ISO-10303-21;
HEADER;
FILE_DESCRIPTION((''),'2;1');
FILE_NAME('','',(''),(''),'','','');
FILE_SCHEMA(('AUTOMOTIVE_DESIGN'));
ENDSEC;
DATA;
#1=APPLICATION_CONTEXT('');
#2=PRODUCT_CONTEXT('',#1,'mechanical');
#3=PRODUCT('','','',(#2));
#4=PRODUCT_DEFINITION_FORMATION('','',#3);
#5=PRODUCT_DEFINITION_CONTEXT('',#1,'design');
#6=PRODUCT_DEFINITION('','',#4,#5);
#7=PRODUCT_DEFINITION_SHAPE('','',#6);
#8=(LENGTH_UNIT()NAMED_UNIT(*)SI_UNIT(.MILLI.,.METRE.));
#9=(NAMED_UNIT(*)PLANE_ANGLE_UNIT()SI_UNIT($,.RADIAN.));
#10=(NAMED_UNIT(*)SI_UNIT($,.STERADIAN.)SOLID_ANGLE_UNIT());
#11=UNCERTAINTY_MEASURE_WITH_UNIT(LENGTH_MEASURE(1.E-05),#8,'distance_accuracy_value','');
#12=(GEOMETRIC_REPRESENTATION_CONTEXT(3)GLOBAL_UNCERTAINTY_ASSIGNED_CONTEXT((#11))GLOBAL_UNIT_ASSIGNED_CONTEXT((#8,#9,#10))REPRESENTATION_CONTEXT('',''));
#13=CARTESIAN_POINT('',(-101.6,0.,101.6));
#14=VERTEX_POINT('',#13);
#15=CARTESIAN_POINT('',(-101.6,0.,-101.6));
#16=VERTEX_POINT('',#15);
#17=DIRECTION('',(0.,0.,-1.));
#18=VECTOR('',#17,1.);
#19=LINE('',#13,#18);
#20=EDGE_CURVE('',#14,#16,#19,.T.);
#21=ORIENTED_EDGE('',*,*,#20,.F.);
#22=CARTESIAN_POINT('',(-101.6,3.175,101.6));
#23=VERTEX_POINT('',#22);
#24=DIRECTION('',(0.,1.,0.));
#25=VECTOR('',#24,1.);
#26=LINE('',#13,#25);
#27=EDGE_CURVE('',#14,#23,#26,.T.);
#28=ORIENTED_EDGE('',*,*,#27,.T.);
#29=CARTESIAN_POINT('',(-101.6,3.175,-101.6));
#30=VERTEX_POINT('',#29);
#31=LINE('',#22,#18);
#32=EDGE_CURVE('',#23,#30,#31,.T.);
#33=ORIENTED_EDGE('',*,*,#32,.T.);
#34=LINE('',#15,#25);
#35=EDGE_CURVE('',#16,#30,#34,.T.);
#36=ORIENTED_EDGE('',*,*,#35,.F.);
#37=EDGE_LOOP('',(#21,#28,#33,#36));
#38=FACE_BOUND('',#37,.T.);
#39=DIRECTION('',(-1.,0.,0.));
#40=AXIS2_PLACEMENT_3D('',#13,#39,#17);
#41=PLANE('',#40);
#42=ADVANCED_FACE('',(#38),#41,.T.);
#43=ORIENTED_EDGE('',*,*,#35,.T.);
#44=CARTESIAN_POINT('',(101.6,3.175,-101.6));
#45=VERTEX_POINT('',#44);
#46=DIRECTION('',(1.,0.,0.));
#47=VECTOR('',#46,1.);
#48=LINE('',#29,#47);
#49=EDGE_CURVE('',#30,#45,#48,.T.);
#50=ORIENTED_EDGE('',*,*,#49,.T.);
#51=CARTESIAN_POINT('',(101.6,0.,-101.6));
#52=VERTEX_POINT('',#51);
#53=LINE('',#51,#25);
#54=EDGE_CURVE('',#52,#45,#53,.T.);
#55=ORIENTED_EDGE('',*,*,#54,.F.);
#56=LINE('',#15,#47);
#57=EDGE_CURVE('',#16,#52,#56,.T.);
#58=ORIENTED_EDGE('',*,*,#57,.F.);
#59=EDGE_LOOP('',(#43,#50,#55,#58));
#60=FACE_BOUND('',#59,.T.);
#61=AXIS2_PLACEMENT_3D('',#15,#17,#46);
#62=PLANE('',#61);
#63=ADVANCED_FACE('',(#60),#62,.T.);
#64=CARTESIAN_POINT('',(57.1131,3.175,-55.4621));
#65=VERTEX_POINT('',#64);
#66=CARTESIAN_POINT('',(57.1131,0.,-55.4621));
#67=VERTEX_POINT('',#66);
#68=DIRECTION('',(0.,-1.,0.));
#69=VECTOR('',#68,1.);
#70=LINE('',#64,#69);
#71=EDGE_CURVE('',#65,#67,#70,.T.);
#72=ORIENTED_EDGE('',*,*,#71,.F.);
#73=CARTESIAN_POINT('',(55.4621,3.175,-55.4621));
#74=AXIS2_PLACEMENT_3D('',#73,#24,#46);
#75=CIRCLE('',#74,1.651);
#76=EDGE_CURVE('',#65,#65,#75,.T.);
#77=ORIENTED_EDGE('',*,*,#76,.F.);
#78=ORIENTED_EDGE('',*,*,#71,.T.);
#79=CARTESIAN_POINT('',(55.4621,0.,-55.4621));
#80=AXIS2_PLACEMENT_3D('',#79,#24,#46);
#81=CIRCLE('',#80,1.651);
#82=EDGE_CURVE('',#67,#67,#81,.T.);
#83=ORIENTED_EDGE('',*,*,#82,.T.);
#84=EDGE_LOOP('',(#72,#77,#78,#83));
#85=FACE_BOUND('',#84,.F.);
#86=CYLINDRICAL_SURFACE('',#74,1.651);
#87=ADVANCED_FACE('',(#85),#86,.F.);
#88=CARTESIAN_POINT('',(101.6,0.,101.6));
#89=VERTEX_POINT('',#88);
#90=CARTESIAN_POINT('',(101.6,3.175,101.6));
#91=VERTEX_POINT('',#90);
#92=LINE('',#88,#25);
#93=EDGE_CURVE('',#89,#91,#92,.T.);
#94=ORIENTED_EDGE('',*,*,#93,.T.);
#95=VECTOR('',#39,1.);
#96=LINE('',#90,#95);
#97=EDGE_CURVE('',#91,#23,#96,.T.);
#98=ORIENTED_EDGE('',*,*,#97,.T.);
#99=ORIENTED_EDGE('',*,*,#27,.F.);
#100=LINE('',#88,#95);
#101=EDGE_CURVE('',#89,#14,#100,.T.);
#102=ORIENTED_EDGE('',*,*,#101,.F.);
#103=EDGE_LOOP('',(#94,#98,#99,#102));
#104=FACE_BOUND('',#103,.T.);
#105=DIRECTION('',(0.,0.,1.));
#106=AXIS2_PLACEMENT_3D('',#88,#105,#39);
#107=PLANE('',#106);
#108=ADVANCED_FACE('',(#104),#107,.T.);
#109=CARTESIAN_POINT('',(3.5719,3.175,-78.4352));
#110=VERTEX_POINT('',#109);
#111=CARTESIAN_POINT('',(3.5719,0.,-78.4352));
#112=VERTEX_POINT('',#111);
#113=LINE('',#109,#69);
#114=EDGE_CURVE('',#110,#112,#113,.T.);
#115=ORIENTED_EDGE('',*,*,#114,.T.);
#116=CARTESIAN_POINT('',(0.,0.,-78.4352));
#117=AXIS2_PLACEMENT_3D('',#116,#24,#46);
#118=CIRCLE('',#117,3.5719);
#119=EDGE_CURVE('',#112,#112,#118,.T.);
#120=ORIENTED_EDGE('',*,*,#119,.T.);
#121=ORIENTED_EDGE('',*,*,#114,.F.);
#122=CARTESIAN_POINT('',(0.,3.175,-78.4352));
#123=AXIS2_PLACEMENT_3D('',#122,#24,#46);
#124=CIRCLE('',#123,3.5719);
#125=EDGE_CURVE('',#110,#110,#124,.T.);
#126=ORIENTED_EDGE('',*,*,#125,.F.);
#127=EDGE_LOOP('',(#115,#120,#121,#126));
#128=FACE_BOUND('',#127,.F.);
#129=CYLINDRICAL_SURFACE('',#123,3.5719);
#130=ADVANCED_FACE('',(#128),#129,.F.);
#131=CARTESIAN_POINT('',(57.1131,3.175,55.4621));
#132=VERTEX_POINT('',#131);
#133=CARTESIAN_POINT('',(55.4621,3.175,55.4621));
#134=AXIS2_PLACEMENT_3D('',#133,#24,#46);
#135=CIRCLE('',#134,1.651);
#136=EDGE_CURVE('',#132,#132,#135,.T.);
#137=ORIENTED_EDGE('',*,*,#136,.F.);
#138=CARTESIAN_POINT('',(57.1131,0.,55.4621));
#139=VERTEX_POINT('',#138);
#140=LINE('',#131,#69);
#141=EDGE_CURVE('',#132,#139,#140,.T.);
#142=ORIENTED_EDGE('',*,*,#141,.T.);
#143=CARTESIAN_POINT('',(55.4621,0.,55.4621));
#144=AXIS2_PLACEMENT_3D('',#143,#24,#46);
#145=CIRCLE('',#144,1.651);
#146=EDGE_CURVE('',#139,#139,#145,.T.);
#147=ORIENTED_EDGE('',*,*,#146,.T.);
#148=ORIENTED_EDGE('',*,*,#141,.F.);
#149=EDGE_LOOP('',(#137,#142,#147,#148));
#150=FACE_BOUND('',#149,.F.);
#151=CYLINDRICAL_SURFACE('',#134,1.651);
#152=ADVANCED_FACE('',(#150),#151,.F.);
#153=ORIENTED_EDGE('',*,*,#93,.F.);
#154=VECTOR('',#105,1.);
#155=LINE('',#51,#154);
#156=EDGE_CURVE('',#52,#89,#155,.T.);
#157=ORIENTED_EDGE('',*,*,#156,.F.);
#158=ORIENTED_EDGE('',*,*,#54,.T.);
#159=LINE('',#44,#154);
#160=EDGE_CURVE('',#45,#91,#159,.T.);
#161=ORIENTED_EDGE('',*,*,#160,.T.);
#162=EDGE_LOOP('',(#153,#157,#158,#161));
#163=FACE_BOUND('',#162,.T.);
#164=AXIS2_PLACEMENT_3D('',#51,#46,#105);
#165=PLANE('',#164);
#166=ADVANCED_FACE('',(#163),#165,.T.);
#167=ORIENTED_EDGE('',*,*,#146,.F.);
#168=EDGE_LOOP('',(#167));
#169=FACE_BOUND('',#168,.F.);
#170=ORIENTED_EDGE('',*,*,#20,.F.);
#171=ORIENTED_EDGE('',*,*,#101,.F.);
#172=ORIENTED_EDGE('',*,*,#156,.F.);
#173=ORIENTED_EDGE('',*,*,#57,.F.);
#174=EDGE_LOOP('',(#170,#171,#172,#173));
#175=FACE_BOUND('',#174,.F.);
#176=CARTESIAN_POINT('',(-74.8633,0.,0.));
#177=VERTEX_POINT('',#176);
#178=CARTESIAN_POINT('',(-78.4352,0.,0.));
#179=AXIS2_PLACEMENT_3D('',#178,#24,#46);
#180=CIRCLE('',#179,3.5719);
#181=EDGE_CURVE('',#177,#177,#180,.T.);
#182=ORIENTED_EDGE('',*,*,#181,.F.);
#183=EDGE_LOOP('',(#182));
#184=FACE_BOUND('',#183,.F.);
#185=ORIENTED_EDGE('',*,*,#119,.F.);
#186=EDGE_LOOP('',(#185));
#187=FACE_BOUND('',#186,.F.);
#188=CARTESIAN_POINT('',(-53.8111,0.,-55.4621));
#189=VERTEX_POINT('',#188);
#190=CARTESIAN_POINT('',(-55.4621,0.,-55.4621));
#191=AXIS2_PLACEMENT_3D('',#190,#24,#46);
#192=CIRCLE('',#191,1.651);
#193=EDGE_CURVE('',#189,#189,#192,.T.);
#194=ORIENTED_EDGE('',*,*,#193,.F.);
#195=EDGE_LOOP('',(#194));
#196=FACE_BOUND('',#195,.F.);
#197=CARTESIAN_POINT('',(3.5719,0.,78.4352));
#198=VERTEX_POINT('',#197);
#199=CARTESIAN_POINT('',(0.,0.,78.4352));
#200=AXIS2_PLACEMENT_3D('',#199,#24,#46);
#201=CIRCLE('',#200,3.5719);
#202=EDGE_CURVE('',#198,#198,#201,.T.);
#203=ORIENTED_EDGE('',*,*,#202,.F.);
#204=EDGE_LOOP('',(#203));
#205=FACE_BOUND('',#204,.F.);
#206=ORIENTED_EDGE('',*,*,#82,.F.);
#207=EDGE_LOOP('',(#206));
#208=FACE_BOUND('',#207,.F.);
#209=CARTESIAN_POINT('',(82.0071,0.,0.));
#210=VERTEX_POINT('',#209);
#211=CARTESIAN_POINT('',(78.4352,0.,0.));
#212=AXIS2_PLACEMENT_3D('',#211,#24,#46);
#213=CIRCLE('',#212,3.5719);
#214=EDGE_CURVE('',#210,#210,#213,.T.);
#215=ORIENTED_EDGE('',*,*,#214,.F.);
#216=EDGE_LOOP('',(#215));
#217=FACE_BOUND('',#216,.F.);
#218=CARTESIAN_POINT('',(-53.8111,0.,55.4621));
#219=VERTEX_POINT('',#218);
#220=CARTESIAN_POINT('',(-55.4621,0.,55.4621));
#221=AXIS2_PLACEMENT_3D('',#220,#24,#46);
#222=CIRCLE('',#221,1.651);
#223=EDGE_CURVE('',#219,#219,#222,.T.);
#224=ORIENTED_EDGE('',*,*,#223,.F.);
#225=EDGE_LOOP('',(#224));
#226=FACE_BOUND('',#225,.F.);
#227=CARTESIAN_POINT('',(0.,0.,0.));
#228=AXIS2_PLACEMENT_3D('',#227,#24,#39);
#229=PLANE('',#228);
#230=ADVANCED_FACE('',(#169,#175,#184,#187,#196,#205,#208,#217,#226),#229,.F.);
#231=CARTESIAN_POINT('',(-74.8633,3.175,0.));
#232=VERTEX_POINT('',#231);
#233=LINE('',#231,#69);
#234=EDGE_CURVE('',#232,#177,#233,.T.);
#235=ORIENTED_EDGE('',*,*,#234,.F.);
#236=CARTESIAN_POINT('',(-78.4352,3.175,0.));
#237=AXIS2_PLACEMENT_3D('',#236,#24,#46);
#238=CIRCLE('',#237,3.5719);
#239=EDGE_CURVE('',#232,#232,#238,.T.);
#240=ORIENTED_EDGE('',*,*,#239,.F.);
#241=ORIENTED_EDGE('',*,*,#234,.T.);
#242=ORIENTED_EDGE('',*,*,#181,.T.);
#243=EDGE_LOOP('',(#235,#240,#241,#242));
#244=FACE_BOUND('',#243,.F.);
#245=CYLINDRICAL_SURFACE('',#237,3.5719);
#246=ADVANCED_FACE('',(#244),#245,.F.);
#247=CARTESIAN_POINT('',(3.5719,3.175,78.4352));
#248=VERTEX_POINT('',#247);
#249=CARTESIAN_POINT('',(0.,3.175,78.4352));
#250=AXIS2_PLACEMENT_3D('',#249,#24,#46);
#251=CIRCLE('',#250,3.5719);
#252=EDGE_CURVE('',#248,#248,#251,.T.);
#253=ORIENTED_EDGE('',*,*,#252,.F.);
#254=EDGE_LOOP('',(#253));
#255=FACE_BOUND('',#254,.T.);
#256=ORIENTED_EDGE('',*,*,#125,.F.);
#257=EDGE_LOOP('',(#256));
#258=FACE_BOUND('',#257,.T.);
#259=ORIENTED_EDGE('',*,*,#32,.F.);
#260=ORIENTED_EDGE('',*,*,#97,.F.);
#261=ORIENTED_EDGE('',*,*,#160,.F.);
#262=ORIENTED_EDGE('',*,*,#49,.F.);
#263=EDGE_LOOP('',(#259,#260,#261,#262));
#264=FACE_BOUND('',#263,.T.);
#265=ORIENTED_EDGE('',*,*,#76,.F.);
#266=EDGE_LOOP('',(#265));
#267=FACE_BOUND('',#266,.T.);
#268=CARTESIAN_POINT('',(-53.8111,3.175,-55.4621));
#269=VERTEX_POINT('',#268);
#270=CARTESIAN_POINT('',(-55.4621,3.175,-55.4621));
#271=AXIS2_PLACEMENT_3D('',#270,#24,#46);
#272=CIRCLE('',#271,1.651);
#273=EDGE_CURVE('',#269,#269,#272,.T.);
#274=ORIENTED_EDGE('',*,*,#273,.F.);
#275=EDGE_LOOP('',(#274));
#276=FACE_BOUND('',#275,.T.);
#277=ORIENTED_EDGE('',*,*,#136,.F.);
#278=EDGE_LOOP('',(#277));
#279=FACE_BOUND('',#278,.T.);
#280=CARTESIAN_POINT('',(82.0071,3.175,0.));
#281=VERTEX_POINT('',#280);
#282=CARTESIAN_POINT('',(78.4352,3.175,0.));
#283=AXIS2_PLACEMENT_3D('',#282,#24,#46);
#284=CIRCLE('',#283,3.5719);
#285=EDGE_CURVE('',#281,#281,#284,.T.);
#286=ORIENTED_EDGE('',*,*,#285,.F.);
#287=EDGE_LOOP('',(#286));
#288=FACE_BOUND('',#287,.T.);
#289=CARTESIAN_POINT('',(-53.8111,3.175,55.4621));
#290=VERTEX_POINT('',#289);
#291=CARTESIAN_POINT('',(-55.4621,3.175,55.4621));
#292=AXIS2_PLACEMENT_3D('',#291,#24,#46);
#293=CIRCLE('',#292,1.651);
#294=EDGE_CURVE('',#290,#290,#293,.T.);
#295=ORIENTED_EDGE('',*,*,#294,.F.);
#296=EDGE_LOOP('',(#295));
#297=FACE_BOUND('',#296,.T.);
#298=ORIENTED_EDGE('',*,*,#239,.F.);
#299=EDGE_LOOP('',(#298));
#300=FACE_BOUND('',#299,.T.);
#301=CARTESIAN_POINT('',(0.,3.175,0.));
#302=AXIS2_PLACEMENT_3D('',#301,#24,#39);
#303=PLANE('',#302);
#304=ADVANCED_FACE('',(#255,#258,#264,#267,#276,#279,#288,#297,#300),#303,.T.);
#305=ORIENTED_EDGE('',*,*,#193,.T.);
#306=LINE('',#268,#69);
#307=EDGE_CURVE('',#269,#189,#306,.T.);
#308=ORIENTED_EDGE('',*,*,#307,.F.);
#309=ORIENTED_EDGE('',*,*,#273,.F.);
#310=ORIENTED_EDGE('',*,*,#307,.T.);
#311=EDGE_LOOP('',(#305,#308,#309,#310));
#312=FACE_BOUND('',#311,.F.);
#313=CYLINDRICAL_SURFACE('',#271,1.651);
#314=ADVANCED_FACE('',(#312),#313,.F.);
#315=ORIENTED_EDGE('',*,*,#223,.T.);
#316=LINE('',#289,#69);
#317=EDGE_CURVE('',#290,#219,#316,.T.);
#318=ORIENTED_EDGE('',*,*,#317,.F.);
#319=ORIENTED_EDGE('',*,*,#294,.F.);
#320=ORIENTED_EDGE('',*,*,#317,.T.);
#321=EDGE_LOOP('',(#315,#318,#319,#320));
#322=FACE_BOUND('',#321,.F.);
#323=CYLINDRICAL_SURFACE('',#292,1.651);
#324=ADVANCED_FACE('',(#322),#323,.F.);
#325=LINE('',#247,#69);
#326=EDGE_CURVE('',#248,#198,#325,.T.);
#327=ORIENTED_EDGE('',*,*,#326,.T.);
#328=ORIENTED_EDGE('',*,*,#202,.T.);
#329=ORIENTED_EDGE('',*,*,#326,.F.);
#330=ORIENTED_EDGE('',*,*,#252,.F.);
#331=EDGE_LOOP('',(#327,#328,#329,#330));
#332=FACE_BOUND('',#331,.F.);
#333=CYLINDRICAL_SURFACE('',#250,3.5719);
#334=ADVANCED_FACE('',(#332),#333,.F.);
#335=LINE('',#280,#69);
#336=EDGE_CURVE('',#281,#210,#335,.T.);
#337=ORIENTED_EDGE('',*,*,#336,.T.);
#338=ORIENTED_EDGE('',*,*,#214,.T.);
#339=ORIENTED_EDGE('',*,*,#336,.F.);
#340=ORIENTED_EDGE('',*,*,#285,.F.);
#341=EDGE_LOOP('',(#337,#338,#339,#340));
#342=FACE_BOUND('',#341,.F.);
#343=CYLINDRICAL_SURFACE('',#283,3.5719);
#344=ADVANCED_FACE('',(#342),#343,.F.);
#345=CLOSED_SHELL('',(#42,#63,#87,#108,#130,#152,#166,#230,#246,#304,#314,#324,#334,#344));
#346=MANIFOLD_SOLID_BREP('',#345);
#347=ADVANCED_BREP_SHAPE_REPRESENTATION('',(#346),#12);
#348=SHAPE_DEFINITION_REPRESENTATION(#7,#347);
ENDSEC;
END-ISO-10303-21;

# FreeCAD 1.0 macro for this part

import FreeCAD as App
import Part
import Sketcher

V = App.Vector
Q = App.Units.Quantity

doc = App.newDocument("Part")
body = doc.addObject("PartDesign::Body", "Body")

# Sketch on XZ plane
sketch1 = body.newObject("Sketcher::SketchObject", "Sketch")
sketch1.AttachmentSupport = (doc.getObject("XZ_Plane"), [""])
sketch1.MapMode = "FlatFace"
sketch1.addGeometry([
    Part.LineSegment(V(-102, 102, 0), V(102, 102, 0)),
    Part.LineSegment(V(102, 102, 0), V(102, -102, 0)),
    Part.LineSegment(V(102, -102, 0), V(-102, -102, 0)),
    Part.LineSegment(V(-102, -102, 0), V(-102, 102, 0)),
], False)
sketch1.addConstraint([
    Sketcher.Constraint("Coincident", 0, 2, 1, 1),
    Sketcher.Constraint("Coincident", 1, 2, 2, 1),
    Sketcher.Constraint("Coincident", 2, 2, 3, 1),
    Sketcher.Constraint("Coincident", 3, 2, 0, 1),
    Sketcher.Constraint("Horizontal", 0),
    Sketcher.Constraint("Vertical", 1),
    Sketcher.Constraint("Horizontal", 2),
    Sketcher.Constraint("Vertical", 3),
    Sketcher.Constraint("Symmetric", 0, 2, 2, 2, -1, 1),
    Sketcher.Constraint("Equal", 2, 1),
    Sketcher.Constraint("DistanceX", 0, 1, 0, 2, Q("8 in")),
])
pad1 = body.newObject("PartDesign::Pad", "Pad")
pad1.Profile = sketch1
pad1.Length = Q("0.125 in")
pad1.Reversed = True

# Sketch on XZ plane
sketch2 = body.newObject("Sketcher::SketchObject", "Sketch001")
sketch2.AttachmentSupport = (doc.getObject("XZ_Plane"), [""])
sketch2.MapMode = "FlatFace"
sketch2.AttachmentOffset = App.Placement(V(0, 0, -0.125 * 25.4), App.Rotation())
sketch2.addGeometry([
    Part.Circle(V(0, 78.4, 0), V(0, 0, 1), 3.6),  # 0
    Part.Circle(V(78.4, 0, 0), V(0, 0, 1), 3.6),  # 1
    Part.Circle(V(0, -78.4, 0), V(0, 0, 1), 3.6),  # 2
    Part.Circle(V(-78.4, 0, 0), V(0, 0, 1), 3.6),  # 3
    Part.Circle(V(-55.5, 55.5, 0), V(0, 0, 1), 1.7),  # 4
    Part.Circle(V(55.5, 55.5, 0), V(0, 0, 1), 1.7),  # 5
    Part.Circle(V(55.5, -55.5, 0), V(0, 0, 1), 1.7),  # 6
    Part.Circle(V(-55.5, -55.5, 0), V(0, 0, 1), 1.7),  # 7
], False)
sketch2.addConstraint([
    Sketcher.Constraint("Equal", 0, 1),
    Sketcher.Constraint("Equal", 1, 2),
    Sketcher.Constraint("Equal", 2, 3),
    Sketcher.Constraint("Equal", 4, 5),
    Sketcher.Constraint("Equal", 5, 6),
    Sketcher.Constraint("Equal", 6, 7),
    Sketcher.Constraint("Symmetric", 0, 3, 2, 3, -1, 1),
    Sketcher.Constraint("Symmetric", 1, 3, 3, 3, -1, 1),
    Sketcher.Constraint("Symmetric", 4, 3, 6, 3, -1, 1),
    Sketcher.Constraint("Symmetric", 5, 3, 7, 3, -1, 1),
    Sketcher.Constraint("Symmetric", 4, 3, 5, 3, -2),
    Sketcher.Constraint("PointOnObject", 0, 3, -2),
    Sketcher.Constraint("PointOnObject", 1, 3, -1),
    Sketcher.Constraint("Diameter", 4, Q("0.13 in")),
    Sketcher.Constraint("Diameter", 0, Q("0.281252 in")),
    Sketcher.Constraint("DistanceY", -1, 1, 0, 3, Q("3.088 in")),
    Sketcher.Constraint("DistanceX", -1, 1, 1, 3, Q("3.088 in")),
    Sketcher.Constraint("DistanceX", 4, 3, 5, 3, Q("4.3671 in")),
    Sketcher.Constraint("DistanceY", 6, 3, 5, 3, Q("4.3671 in")),
])
pocket1 = body.newObject("PartDesign::Pocket", "Pocket")
pocket1.Profile = sketch2
pocket1.Type = "ThroughAll"
pocket1.Reversed = True

doc.recompute()
